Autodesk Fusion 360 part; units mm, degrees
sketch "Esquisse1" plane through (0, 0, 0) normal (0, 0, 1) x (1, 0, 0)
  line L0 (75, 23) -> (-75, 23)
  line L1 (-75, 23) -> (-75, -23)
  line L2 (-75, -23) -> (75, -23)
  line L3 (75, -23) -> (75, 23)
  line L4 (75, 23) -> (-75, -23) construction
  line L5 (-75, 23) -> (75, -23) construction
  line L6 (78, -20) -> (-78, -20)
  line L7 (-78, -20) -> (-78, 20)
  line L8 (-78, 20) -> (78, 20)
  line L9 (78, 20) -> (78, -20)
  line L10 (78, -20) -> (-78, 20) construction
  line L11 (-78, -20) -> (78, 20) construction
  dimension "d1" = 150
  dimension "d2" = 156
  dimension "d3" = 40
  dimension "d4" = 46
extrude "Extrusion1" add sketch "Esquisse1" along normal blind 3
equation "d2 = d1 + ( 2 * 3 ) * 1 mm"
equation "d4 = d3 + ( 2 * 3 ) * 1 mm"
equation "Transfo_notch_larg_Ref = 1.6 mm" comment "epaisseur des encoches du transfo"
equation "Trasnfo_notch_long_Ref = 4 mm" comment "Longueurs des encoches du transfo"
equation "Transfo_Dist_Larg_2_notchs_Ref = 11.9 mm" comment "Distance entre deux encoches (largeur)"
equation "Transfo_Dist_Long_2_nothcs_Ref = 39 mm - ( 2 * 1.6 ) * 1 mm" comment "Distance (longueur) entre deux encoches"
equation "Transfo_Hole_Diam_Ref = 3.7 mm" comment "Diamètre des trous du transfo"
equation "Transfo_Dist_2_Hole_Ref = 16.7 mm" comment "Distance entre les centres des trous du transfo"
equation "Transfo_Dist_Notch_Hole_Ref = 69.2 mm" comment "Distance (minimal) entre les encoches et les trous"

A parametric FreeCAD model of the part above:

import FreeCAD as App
import Part
import Sketcher


def add_polygon(sketch, points):
    """Adds a closed chain of lines whose ends are joined by coincident constraints."""
    first, n = sketch.GeometryCount, len(points)
    for a, b in zip(points, points[1:] + points[:1]):
        sketch.addGeometry(Part.LineSegment(App.Vector(*a, 0), App.Vector(*b, 0)), False)
    for i in range(n):
        sketch.addConstraint(Sketcher.Constraint("Coincident", first + i, 2, first + (i + 1) % n, 1))

doc = App.newDocument("Part")
body = doc.addObject("PartDesign::Body", "Body")

sketch1 = body.newObject("Sketcher::SketchObject", "Sketch")
sketch1.AttachmentSupport = (doc.getObject("XY_Plane"), [""])
sketch1.MapMode = "FlatFace"
add_polygon(sketch1, [(75, 20), (75, 23), (-75, 23), (-75, 20), (-78, 20), (-78, -20), (-75, -20), (-75, -23), (75, -23), (75, -20), (78, -20), (78, 20)])
sketch1.addConstraint([
    Sketcher.Constraint("Vertical", 0),
    Sketcher.Constraint("Horizontal", 1),
    Sketcher.Constraint("Vertical", 2),
    Sketcher.Constraint("Horizontal", 3),
    Sketcher.Constraint("Vertical", 4),
    Sketcher.Constraint("Horizontal", 5),
    Sketcher.Constraint("Vertical", 6),
    Sketcher.Constraint("Horizontal", 7),
    Sketcher.Constraint("Vertical", 8),
    Sketcher.Constraint("Horizontal", 9),
    Sketcher.Constraint("Vertical", 10),
    Sketcher.Constraint("Horizontal", 11),
    Sketcher.Constraint("Symmetric", 0, 2, 6, 2, -1, 1),
    Sketcher.Constraint("Symmetric", 2, 2, 8, 2, -1, 1),
    Sketcher.Constraint("Symmetric", 4, 2, 10, 2, -1, 1),
    Sketcher.Constraint("Symmetric", 5, 2, 8, 2, -2),
    Sketcher.Constraint("Equal", 11, 0),
    Sketcher.Constraint("DistanceX", 1, 2, 1, 1, 150.0),
    Sketcher.Constraint("DistanceY", 4, 2, 4, 1, 40.0),
    Sketcher.Constraint("DistanceY", 6, 2, 1, 2, 46.0),
])
pad1 = body.newObject("PartDesign::Pad", "Pad")
pad1.Profile = sketch1
pad1.Length = 3

doc.recompute()
